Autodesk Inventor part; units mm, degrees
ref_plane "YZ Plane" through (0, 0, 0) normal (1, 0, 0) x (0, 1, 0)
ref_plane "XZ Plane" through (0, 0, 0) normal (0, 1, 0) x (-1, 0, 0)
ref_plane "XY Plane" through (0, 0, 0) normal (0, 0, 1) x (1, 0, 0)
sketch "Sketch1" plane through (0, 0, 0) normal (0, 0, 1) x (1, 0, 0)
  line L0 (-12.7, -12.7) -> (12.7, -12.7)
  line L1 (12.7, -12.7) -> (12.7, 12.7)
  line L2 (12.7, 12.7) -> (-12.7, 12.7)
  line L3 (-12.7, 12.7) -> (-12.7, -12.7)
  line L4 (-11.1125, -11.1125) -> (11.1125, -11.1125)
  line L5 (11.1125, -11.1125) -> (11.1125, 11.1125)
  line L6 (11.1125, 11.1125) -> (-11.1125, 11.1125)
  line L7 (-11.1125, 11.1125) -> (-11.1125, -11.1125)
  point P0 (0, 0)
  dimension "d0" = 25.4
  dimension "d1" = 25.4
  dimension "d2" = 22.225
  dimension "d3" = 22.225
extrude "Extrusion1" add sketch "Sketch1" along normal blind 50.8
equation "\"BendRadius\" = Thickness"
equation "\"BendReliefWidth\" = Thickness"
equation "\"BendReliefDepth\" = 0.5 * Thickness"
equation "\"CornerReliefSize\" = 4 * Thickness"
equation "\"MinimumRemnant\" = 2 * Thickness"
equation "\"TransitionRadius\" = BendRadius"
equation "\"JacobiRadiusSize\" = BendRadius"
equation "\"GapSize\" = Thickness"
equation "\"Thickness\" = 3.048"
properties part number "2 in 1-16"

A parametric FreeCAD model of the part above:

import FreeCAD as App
import Part
import Sketcher

V = App.Vector
Q = App.Units.Quantity


def add_polygon(sketch, points):
    """Adds a closed chain of lines whose ends are joined by coincident constraints."""
    first, n = sketch.GeometryCount, len(points)
    for a, b in zip(points, points[1:] + points[:1]):
        sketch.addGeometry(Part.LineSegment(App.Vector(*a, 0), App.Vector(*b, 0)), False)
    for i in range(n):
        sketch.addConstraint(Sketcher.Constraint("Coincident", first + i, 2, first + (i + 1) % n, 1))

doc = App.newDocument("Part")
body = doc.addObject("PartDesign::Body", "Body")

# Sketch on XY plane
sketch1 = doc.addObject("Sketcher::SketchObject", "Sketch")
body.addObject(sketch1)
sketch1.AttachmentSupport = (doc.XY_Plane, [""])
sketch1.MapMode = "FlatFace"
add_polygon(sketch1, [(-12.7, 12.7), (-12.7, -12.7), (12.7, -12.7), (12.7, 12.7)])  # lines 0-3
add_polygon(sketch1, [(11.1125, -11.1125), (-11.1125, -11.1125), (-11.1125, 11.1125), (11.1125, 11.1125)])  # lines 4-7
sketch1.addConstraint([
    Sketcher.Constraint("Vertical", 0),
    Sketcher.Constraint("Horizontal", 1),
    Sketcher.Constraint("Vertical", 2),
    Sketcher.Constraint("Horizontal", 3),
    Sketcher.Constraint("Horizontal", 4),
    Sketcher.Constraint("Vertical", 5),
    Sketcher.Constraint("Horizontal", 6),
    Sketcher.Constraint("Vertical", 7),
    Sketcher.Constraint("Symmetric", 0, 2, 2, 2, -1, 1),
    Sketcher.Constraint("Symmetric", 4, 2, 6, 2, -1, 1),
    Sketcher.Constraint("Equal", 3, 0),
    Sketcher.Constraint("Equal", 6, 5),
    Sketcher.Constraint("DistanceX", 1, 1, 1, 2, Q("1 in")),
    Sketcher.Constraint("DistanceX", 4, 2, 4, 1, Q("0.875 in")),
])
pad1 = doc.addObject("PartDesign::Pad", "Pad")
body.addObject(pad1)
pad1.Profile = sketch1
pad1.Length = Q("2 in")

doc.recompute()
